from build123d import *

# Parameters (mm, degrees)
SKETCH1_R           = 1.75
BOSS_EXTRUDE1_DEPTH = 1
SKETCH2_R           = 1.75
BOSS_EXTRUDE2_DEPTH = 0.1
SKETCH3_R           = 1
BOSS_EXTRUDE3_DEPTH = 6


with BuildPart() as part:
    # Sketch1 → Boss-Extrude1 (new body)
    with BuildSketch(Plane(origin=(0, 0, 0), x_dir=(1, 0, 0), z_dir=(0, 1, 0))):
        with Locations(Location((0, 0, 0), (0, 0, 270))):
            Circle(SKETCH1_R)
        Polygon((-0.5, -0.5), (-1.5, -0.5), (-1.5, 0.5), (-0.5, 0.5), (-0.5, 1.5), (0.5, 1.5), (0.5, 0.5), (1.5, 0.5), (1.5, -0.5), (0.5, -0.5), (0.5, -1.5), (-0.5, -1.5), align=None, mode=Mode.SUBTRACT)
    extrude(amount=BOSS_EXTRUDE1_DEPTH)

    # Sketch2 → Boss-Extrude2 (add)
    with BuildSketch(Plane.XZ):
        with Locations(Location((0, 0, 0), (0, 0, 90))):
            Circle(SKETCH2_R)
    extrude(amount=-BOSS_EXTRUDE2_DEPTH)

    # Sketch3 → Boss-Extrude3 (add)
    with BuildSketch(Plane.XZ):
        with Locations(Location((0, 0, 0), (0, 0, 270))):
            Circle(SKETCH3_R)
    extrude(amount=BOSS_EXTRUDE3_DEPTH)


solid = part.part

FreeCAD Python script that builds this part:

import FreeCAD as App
import Part
import Sketcher
from FreeCAD import Vector
Q = App.Units.Quantity

doc = App.newDocument("Part")
body = doc.addObject("PartDesign::Body", "Body")

# Sketch on XZ plane
sketch1 = doc.addObject("Sketcher::SketchObject", "Sketch")
body.addObject(sketch1)
sketch1.AttachmentSupport = (doc.XZ_Plane, [""])
sketch1.MapMode = "FlatFace"
sketch1.addGeometry([
    Part.Circle(Vector(0, 0, 0), Vector(0, 0, 1), 1.75),  # 0
    Part.LineSegment(Vector(-0.5, 1.5, 0), Vector(-0.5, 0.5, 0)),  # 1
    Part.LineSegment(Vector(-0.5, 0.5, 0), Vector(-1.5, 0.5, 0)),  # 2
    Part.LineSegment(Vector(-1.5, 0.5, 0), Vector(-1.5, -0.5, 0)),  # 3
    Part.LineSegment(Vector(-1.5, -0.5, 0), Vector(-0.5, -0.5, 0)),  # 4
    Part.LineSegment(Vector(-0.5, -0.5, 0), Vector(-0.5, -1.5, 0)),  # 5
    Part.LineSegment(Vector(-0.5, -1.5, 0), Vector(0.5, -1.5, 0)),  # 6
    Part.LineSegment(Vector(0.5, -1.5, 0), Vector(0.5, -0.5, 0)),  # 7
    Part.LineSegment(Vector(0.5, -0.5, 0), Vector(1.5, -0.5, 0)),  # 8
    Part.LineSegment(Vector(1.5, -0.5, 0), Vector(1.5, 0.5, 0)),  # 9
    Part.LineSegment(Vector(1.5, 0.5, 0), Vector(0.5, 0.5, 0)),  # 10
    Part.LineSegment(Vector(0.5, 0.5, 0), Vector(0.5, 1.5, 0)),  # 11
    Part.LineSegment(Vector(0.5, 1.5, 0), Vector(-0.5, 1.5, 0)),  # 12
], False)
sketch1.addConstraint([
    Sketcher.Constraint("Coincident", 1, 2, 2, 1),
    Sketcher.Constraint("Coincident", 2, 2, 3, 1),
    Sketcher.Constraint("Coincident", 3, 2, 4, 1),
    Sketcher.Constraint("Coincident", 4, 2, 5, 1),
    Sketcher.Constraint("Coincident", 5, 2, 6, 1),
    Sketcher.Constraint("Coincident", 6, 2, 7, 1),
    Sketcher.Constraint("Coincident", 7, 2, 8, 1),
    Sketcher.Constraint("Coincident", 8, 2, 9, 1),
    Sketcher.Constraint("Coincident", 9, 2, 10, 1),
    Sketcher.Constraint("Coincident", 10, 2, 11, 1),
    Sketcher.Constraint("Coincident", 11, 2, 12, 1),
    Sketcher.Constraint("Coincident", 12, 2, 1, 1),
    Sketcher.Constraint("Vertical", 1),
    Sketcher.Constraint("Horizontal", 2),
    Sketcher.Constraint("Vertical", 3),
    Sketcher.Constraint("Horizontal", 4),
    Sketcher.Constraint("Vertical", 5),
    Sketcher.Constraint("Horizontal", 6),
    Sketcher.Constraint("Vertical", 7),
    Sketcher.Constraint("Horizontal", 8),
    Sketcher.Constraint("Vertical", 9),
    Sketcher.Constraint("Horizontal", 10),
    Sketcher.Constraint("Vertical", 11),
    Sketcher.Constraint("Horizontal", 12),
    Sketcher.Constraint("Coincident", 0, 3, -1, 1),
    Sketcher.Constraint("Symmetric", 1, 2, 7, 2, -1, 1),
    Sketcher.Constraint("Symmetric", 3, 2, 9, 2, -1, 1),
    Sketcher.Constraint("Symmetric", 5, 2, 11, 2, -1, 1),
    Sketcher.Constraint("Symmetric", 4, 2, 7, 2, -2),
    Sketcher.Constraint("Equal", 4, 6),
    Sketcher.Constraint("Equal", 12, 1),
    Sketcher.Constraint("Equal", 1, 3),
    Sketcher.Constraint("Diameter", 0, Q("3.5 mm")),
    Sketcher.Constraint("DistanceX", 2, 2, 2, 1, Q("1 mm")),
])
pad1 = doc.addObject("PartDesign::Pad", "Pad")
body.addObject(pad1)
pad1.Profile = sketch1
pad1.Length = 1
pad1.Reversed = True

# Sketch on XZ plane
sketch2 = doc.addObject("Sketcher::SketchObject", "Sketch001")
body.addObject(sketch2)
sketch2.AttachmentSupport = (doc.XZ_Plane, [""])
sketch2.MapMode = "FlatFace"
sketch2.addGeometry(Part.Circle(Vector(0, 0, 0), Vector(0, 0, 1), 1.75), False)
sketch2.addConstraint([
    Sketcher.Constraint("Coincident", 0, 3, -1, 1),
    Sketcher.Constraint("Diameter", 0, Q("3.5 mm")),
])
pad2 = doc.addObject("PartDesign::Pad", "Pad001")
body.addObject(pad2)
pad2.Profile = sketch2
pad2.Length = 0.1
pad2.Reversed = True

# Sketch on XZ plane
sketch3 = doc.addObject("Sketcher::SketchObject", "Sketch002")
body.addObject(sketch3)
sketch3.AttachmentSupport = (doc.XZ_Plane, [""])
sketch3.MapMode = "FlatFace"
sketch3.addGeometry(Part.Circle(Vector(0, 0, 0), Vector(0, 0, 1), 1), False)
sketch3.addConstraint([
    Sketcher.Constraint("Coincident", 0, 3, -1, 1),
    Sketcher.Constraint("Diameter", 0, Q("2 mm")),
])
pad3 = doc.addObject("PartDesign::Pad", "Pad002")
body.addObject(pad3)
pad3.Profile = sketch3
pad3.Length = 6

doc.recompute()
